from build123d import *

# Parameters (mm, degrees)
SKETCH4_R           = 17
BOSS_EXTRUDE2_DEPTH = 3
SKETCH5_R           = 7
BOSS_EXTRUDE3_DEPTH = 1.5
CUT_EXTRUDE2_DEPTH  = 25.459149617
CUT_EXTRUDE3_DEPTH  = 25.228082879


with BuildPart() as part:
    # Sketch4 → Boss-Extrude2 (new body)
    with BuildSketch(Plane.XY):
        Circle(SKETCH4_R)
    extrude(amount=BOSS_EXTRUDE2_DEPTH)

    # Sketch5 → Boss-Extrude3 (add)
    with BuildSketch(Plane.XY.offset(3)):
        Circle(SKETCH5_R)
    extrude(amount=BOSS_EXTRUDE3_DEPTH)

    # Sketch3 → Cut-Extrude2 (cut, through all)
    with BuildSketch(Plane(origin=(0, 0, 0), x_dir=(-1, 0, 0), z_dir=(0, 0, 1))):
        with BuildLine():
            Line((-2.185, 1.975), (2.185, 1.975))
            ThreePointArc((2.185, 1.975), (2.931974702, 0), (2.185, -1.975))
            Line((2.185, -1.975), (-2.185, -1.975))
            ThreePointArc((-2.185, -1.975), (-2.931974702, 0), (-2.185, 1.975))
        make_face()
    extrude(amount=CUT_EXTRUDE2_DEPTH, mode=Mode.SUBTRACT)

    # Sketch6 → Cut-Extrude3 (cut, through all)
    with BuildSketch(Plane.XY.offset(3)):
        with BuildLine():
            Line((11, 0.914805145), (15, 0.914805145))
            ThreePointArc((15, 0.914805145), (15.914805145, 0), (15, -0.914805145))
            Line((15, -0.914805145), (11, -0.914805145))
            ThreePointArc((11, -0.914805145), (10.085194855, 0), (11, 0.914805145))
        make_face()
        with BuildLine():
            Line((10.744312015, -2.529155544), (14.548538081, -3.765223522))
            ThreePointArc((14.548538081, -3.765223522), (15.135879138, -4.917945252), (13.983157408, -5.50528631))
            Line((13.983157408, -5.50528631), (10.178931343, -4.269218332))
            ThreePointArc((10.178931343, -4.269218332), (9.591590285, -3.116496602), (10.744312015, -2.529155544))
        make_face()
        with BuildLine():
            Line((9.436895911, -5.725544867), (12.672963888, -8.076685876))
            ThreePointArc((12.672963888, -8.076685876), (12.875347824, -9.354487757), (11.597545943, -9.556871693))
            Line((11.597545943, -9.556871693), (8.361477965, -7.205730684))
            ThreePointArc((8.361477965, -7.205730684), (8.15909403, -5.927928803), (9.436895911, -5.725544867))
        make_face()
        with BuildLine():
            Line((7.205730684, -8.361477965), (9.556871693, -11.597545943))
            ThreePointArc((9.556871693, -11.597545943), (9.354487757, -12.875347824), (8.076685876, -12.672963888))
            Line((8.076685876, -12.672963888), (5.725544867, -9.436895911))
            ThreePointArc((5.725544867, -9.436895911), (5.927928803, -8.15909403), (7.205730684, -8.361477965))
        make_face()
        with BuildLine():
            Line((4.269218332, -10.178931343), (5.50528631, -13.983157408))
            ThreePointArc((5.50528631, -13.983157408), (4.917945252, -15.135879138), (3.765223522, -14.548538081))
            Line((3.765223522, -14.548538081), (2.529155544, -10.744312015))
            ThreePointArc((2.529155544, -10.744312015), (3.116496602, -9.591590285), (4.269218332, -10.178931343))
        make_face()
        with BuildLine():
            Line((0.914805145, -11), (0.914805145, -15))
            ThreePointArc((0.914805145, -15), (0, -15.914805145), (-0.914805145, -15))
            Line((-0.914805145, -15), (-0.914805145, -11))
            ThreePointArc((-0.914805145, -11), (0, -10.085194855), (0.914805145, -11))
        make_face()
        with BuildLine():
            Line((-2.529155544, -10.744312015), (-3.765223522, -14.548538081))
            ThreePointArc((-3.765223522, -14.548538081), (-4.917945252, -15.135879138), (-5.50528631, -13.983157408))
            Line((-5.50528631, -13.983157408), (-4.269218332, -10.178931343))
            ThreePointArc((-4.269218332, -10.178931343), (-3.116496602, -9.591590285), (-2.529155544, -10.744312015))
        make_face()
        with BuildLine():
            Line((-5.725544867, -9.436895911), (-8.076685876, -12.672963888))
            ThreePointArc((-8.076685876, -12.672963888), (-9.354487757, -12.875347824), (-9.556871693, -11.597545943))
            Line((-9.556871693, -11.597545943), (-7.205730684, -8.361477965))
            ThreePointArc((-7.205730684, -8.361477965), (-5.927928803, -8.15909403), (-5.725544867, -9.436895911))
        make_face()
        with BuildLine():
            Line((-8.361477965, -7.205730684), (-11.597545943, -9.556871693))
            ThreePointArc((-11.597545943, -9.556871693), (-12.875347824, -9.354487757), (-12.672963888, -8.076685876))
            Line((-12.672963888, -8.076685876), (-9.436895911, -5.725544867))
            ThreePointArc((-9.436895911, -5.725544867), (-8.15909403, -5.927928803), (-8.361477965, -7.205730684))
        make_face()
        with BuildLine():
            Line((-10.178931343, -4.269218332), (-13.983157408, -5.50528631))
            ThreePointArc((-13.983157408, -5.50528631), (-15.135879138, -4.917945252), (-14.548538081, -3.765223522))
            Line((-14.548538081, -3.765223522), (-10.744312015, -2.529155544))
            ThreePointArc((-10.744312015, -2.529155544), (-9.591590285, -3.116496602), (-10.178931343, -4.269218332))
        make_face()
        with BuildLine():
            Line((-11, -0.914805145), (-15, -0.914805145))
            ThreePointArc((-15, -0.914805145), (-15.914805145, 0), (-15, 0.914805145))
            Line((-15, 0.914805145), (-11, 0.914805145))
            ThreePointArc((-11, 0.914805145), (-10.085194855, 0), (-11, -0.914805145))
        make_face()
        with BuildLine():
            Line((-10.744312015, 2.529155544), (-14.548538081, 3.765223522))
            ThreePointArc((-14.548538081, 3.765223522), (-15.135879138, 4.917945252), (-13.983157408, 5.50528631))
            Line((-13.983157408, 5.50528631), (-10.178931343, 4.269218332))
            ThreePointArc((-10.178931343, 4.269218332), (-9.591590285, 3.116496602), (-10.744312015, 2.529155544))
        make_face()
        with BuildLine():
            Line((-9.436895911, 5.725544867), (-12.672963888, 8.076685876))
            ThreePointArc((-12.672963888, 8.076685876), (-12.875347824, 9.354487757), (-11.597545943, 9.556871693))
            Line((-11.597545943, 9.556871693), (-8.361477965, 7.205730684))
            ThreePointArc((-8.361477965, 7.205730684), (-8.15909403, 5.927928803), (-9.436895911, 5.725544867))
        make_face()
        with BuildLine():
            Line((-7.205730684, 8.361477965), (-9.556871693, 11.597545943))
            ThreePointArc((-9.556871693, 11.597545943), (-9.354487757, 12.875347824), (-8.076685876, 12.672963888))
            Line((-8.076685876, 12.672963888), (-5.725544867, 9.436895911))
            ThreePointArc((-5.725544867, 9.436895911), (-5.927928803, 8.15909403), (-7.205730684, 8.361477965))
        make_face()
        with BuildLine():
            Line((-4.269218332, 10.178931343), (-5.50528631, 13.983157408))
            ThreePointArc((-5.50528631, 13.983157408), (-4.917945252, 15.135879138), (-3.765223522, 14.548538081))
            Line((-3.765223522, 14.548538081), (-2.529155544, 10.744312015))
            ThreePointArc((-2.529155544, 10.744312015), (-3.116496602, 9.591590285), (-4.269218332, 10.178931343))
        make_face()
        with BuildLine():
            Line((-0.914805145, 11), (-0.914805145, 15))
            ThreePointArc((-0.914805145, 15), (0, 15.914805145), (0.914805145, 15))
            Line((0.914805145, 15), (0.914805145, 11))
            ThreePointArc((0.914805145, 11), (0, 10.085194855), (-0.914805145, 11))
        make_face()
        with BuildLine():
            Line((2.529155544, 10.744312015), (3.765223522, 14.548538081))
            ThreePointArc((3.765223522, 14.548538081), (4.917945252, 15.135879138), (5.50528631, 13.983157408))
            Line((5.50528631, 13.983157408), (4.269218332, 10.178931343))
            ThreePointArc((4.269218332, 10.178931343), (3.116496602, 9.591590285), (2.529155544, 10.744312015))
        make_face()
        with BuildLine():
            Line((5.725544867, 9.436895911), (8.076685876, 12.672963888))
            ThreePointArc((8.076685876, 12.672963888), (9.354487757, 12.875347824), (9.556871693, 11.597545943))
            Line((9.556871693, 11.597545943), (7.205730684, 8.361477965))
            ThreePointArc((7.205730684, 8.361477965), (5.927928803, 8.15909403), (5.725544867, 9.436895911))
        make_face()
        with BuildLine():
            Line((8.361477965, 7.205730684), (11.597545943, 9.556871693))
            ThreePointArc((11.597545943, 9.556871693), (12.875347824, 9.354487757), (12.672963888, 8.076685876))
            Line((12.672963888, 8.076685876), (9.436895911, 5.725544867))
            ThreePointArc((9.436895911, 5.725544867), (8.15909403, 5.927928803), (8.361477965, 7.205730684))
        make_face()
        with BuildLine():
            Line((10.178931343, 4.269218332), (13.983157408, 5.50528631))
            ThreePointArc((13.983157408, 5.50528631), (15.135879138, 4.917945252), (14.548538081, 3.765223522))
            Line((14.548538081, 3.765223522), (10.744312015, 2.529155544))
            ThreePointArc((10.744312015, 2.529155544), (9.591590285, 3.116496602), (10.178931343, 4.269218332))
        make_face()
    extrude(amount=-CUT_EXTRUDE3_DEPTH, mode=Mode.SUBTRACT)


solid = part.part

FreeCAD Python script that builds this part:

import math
import FreeCAD as App
import Part
import Sketcher
from FreeCAD import Vector
Q = App.Units.Quantity

doc = App.newDocument("Part")
params = doc.addObject("Spreadsheet::Sheet", "Params")
for row, (alias, value) in enumerate([
    ("sketch1_diameter", "34 mm"),
    ("pad1_length", "3 mm"),
    ("sketch2_diameter", "14 mm"),
    ("pad2_length", "1.5 mm"),
    ("sketch3_width", "4.37 mm"),
    ("sketch4_width", "4 mm"),
    ("sketch4_length", "4 mm"),
], start=1):
    params.set(f"A{row}", alias)
    params.set(f"B{row}", "=" + value)
    params.setAlias(f"B{row}", alias)

body = doc.addObject("PartDesign::Body", "Body")

# Sketch on XY plane
sketch1 = body.newObject("Sketcher::SketchObject", "Sketch")
sketch1.AttachmentSupport = (doc.getObject("XY_Plane"), [""])
sketch1.MapMode = "FlatFace"
sketch1.addGeometry(Part.Circle(Vector(0, 0, 0), Vector(0, 0, 1), 17), False)
sketch1.addConstraint(Sketcher.Constraint("Coincident", 0, 3, -1, 1))
sketch1.addConstraint(Sketcher.Constraint("Diameter", 0, Q("34 mm")))
sketch1.setExpression("Constraints[1]", "Params.sketch1_diameter")
pad1 = body.newObject("PartDesign::Pad", "Pad")
pad1.Profile = sketch1
pad1.setExpression("Length", "Params.pad1_length")

# Sketch on XY plane
sketch2 = body.newObject("Sketcher::SketchObject", "Sketch001")
sketch2.AttachmentSupport = (doc.getObject("XY_Plane"), [""])
sketch2.MapMode = "FlatFace"
sketch2.AttachmentOffset = App.Placement(Vector(0, 0, 3), App.Rotation())
sketch2.addGeometry(Part.Circle(Vector(0, 0, 0), Vector(0, 0, 1), 7), False)
sketch2.addConstraint(Sketcher.Constraint("Coincident", 0, 3, -1, 1))
sketch2.addConstraint(Sketcher.Constraint("Diameter", 0, Q("14 mm")))
sketch2.setExpression("Constraints[1]", "Params.sketch2_diameter")
pad2 = body.newObject("PartDesign::Pad", "Pad001")
pad2.Profile = sketch2
pad2.setExpression("Length", "Params.pad2_length")

# Sketch on XY plane
sketch3 = body.newObject("Sketcher::SketchObject", "Sketch002")
sketch3.AttachmentSupport = (doc.getObject("XY_Plane"), [""])
sketch3.MapMode = "FlatFace"
sketch3.addGeometry(Part.LineSegment(Vector(-2.2, -2, 0), Vector(2.2, -2, 0)), False)
sketch3.addGeometry(Part.ArcOfCircle(Part.Circle(Vector(-0.1, 0, 0), Vector(0, 0, 1), 3), math.radians(-41), math.radians(41)), False)
sketch3.addGeometry(Part.LineSegment(Vector(2.2, 2, 0), Vector(-2.2, 2, 0)), False)
sketch3.addGeometry(Part.ArcOfCircle(Part.Circle(Vector(0.1, 0, 0), Vector(0, 0, 1), 3), math.radians(139), math.radians(221)), False)
sketch3.addConstraint(Sketcher.Constraint("Coincident", 0, 2, 1, 1))
sketch3.addConstraint(Sketcher.Constraint("Coincident", 1, 2, 2, 1))
sketch3.addConstraint(Sketcher.Constraint("Coincident", 2, 2, 3, 1))
sketch3.addConstraint(Sketcher.Constraint("Coincident", 3, 2, 0, 1))
sketch3.addConstraint(Sketcher.Constraint("Horizontal", 0))
sketch3.addConstraint(Sketcher.Constraint("Horizontal", 2))
sketch3.addConstraint(Sketcher.Constraint("Equal", 1, 3))
sketch3.addConstraint(Sketcher.Constraint("Symmetric", 1, 3, 3, 3, -1, 1))
sketch3.addConstraint(Sketcher.Constraint("Symmetric", 0, 2, 1, 2, -1))
sketch3.addConstraint(Sketcher.Constraint("DistanceX", 0, 1, 0, 2, Q("4.37 mm")))
sketch3.addConstraint(Sketcher.Constraint("DistanceY", 0, 2, 1, 2, Q("3.95 mm")))
sketch3.addConstraint(Sketcher.Constraint("Radius", 1, Q("2.984436 mm")))
sketch3.setExpression("Constraints[9]", "Params.sketch3_width")
pocket1 = body.newObject("PartDesign::Pocket", "Pocket")
pocket1.Profile = sketch3
pocket1.Type = "ThroughAll"
pocket1.Reversed = True

# Sketch on XY plane
sketch4 = body.newObject("Sketcher::SketchObject", "Sketch003")
sketch4.AttachmentSupport = (doc.getObject("XY_Plane"), [""])
sketch4.MapMode = "FlatFace"
sketch4.AttachmentOffset = App.Placement(Vector(0, 0, 3), App.Rotation())
sketch4.addGeometry(Part.LineSegment(Vector(15, 0.9, 0), Vector(11, 0.9, 0)), False)
sketch4.addGeometry(Part.ArcOfCircle(Part.Circle(Vector(11, 0, 0), Vector(0, 0, 1), 0.9), math.radians(90), math.radians(270)), False)
sketch4.addGeometry(Part.LineSegment(Vector(11, -0.9, 0), Vector(15, -0.9, 0)), False)
sketch4.addGeometry(Part.ArcOfCircle(Part.Circle(Vector(15, 0, 0), Vector(0, 0, 1), 0.9), math.radians(-90), math.radians(90)), False)
sketch4.addGeometry(Part.LineSegment(Vector(14.5, -3.8, 0), Vector(10.7, -2.5, 0)), False)
sketch4.addGeometry(Part.ArcOfCircle(Part.Circle(Vector(10.5, -3.4, 0), Vector(0, 0, 1), 0.9), math.radians(72), math.radians(252)), False)
sketch4.addGeometry(Part.LineSegment(Vector(10.2, -4.3, 0), Vector(14, -5.5, 0)), False)
sketch4.addGeometry(Part.ArcOfCircle(Part.Circle(Vector(14.3, -4.6, 0), Vector(0, 0, 1), 0.9), math.radians(-108), math.radians(72)), False)
sketch4.addGeometry(Part.LineSegment(Vector(12.7, -8.1, 0), Vector(9.4, -5.7, 0)), False)
sketch4.addGeometry(Part.ArcOfCircle(Part.Circle(Vector(8.9, -6.5, 0), Vector(0, 0, 1), 0.9), math.radians(54), math.radians(234)), False)
sketch4.addGeometry(Part.LineSegment(Vector(8.4, -7.2, 0), Vector(11.6, -9.6, 0)), False)
sketch4.addGeometry(Part.ArcOfCircle(Part.Circle(Vector(12.1, -8.8, 0), Vector(0, 0, 1), 0.9), math.radians(-126), math.radians(54)), False)
sketch4.addGeometry(Part.LineSegment(Vector(9.6, -11.6, 0), Vector(7.2, -8.4, 0)), False)
sketch4.addGeometry(Part.ArcOfCircle(Part.Circle(Vector(6.5, -8.9, 0), Vector(0, 0, 1), 0.9), math.radians(36), math.radians(216)), False)
sketch4.addGeometry(Part.LineSegment(Vector(5.7, -9.4, 0), Vector(8.1, -12.7, 0)), False)
sketch4.addGeometry(Part.ArcOfCircle(Part.Circle(Vector(8.8, -12.1, 0), Vector(0, 0, 1), 0.9), math.radians(-144), math.radians(36)), False)
sketch4.addGeometry(Part.LineSegment(Vector(5.5, -14, 0), Vector(4.3, -10.2, 0)), False)
sketch4.addGeometry(Part.ArcOfCircle(Part.Circle(Vector(3.4, -10.5, 0), Vector(0, 0, 1), 0.9), math.radians(18), math.radians(198)), False)
sketch4.addGeometry(Part.LineSegment(Vector(2.5, -10.7, 0), Vector(3.8, -14.5, 0)), False)
sketch4.addGeometry(Part.ArcOfCircle(Part.Circle(Vector(4.6, -14.3, 0), Vector(0, 0, 1), 0.9), math.radians(-162), math.radians(18)), False)
sketch4.addGeometry(Part.LineSegment(Vector(0.9, -15, 0), Vector(0.9, -11, 0)), False)
sketch4.addGeometry(Part.ArcOfCircle(Part.Circle(Vector(0, -11, 0), Vector(0, 0, 1), 0.9), math.radians(0), math.radians(180)), False)
sketch4.addGeometry(Part.LineSegment(Vector(-0.9, -11, 0), Vector(-0.9, -15, 0)), False)
sketch4.addGeometry(Part.ArcOfCircle(Part.Circle(Vector(0, -15, 0), Vector(0, 0, 1), 0.9), math.radians(180), math.radians(360)), False)
sketch4.addGeometry(Part.LineSegment(Vector(-3.8, -14.5, 0), Vector(-2.5, -10.7, 0)), False)
sketch4.addGeometry(Part.ArcOfCircle(Part.Circle(Vector(-3.4, -10.5, 0), Vector(0, 0, 1), 0.9), math.radians(-18), math.radians(162)), False)
sketch4.addGeometry(Part.LineSegment(Vector(-4.3, -10.2, 0), Vector(-5.5, -14, 0)), False)
sketch4.addGeometry(Part.ArcOfCircle(Part.Circle(Vector(-4.6, -14.3, 0), Vector(0, 0, 1), 0.9), math.radians(162), math.radians(342)), False)
sketch4.addGeometry(Part.LineSegment(Vector(-8.1, -12.7, 0), Vector(-5.7, -9.4, 0)), False)
sketch4.addGeometry(Part.ArcOfCircle(Part.Circle(Vector(-6.5, -8.9, 0), Vector(0, 0, 1), 0.9), math.radians(-36), math.radians(144)), False)
sketch4.addGeometry(Part.LineSegment(Vector(-7.2, -8.4, 0), Vector(-9.6, -11.6, 0)), False)
sketch4.addGeometry(Part.ArcOfCircle(Part.Circle(Vector(-8.8, -12.1, 0), Vector(0, 0, 1), 0.9), math.radians(144), math.radians(324)), False)
sketch4.addGeometry(Part.LineSegment(Vector(-11.6, -9.6, 0), Vector(-8.4, -7.2, 0)), False)
sketch4.addGeometry(Part.ArcOfCircle(Part.Circle(Vector(-8.9, -6.5, 0), Vector(0, 0, 1), 0.9), math.radians(-54), math.radians(126)), False)
sketch4.addGeometry(Part.LineSegment(Vector(-9.4, -5.7, 0), Vector(-12.7, -8.1, 0)), False)
sketch4.addGeometry(Part.ArcOfCircle(Part.Circle(Vector(-12.1, -8.8, 0), Vector(0, 0, 1), 0.9), math.radians(126), math.radians(306)), False)
sketch4.addGeometry(Part.LineSegment(Vector(-14, -5.5, 0), Vector(-10.2, -4.3, 0)), False)
sketch4.addGeometry(Part.ArcOfCircle(Part.Circle(Vector(-10.5, -3.4, 0), Vector(0, 0, 1), 0.9), math.radians(-72), math.radians(108)), False)
sketch4.addGeometry(Part.LineSegment(Vector(-10.7, -2.5, 0), Vector(-14.5, -3.8, 0)), False)
sketch4.addGeometry(Part.ArcOfCircle(Part.Circle(Vector(-14.3, -4.6, 0), Vector(0, 0, 1), 0.9), math.radians(108), math.radians(288)), False)
sketch4.addGeometry(Part.LineSegment(Vector(-15, -0.9, 0), Vector(-11, -0.9, 0)), False)
sketch4.addGeometry(Part.ArcOfCircle(Part.Circle(Vector(-11, 0, 0), Vector(0, 0, 1), 0.9), math.radians(-90), math.radians(90)), False)
sketch4.addGeometry(Part.LineSegment(Vector(-11, 0.9, 0), Vector(-15, 0.9, 0)), False)
sketch4.addGeometry(Part.ArcOfCircle(Part.Circle(Vector(-15, 0, 0), Vector(0, 0, 1), 0.9), math.radians(90), math.radians(270)), False)
sketch4.addGeometry(Part.LineSegment(Vector(-14.5, 3.8, 0), Vector(-10.7, 2.5, 0)), False)
sketch4.addGeometry(Part.ArcOfCircle(Part.Circle(Vector(-10.5, 3.4, 0), Vector(0, 0, 1), 0.9), math.radians(-108), math.radians(72)), False)
sketch4.addGeometry(Part.LineSegment(Vector(-10.2, 4.3, 0), Vector(-14, 5.5, 0)), False)
sketch4.addGeometry(Part.ArcOfCircle(Part.Circle(Vector(-14.3, 4.6, 0), Vector(0, 0, 1), 0.9), math.radians(72), math.radians(252)), False)
sketch4.addGeometry(Part.LineSegment(Vector(-12.7, 8.1, 0), Vector(-9.4, 5.7, 0)), False)
sketch4.addGeometry(Part.ArcOfCircle(Part.Circle(Vector(-8.9, 6.5, 0), Vector(0, 0, 1), 0.9), math.radians(-126), math.radians(54)), False)
sketch4.addGeometry(Part.LineSegment(Vector(-8.4, 7.2, 0), Vector(-11.6, 9.6, 0)), False)
sketch4.addGeometry(Part.ArcOfCircle(Part.Circle(Vector(-12.1, 8.8, 0), Vector(0, 0, 1), 0.9), math.radians(54), math.radians(234)), False)
sketch4.addGeometry(Part.LineSegment(Vector(-9.6, 11.6, 0), Vector(-7.2, 8.4, 0)), False)
sketch4.addGeometry(Part.ArcOfCircle(Part.Circle(Vector(-6.5, 8.9, 0), Vector(0, 0, 1), 0.9), math.radians(-144), math.radians(36)), False)
sketch4.addGeometry(Part.LineSegment(Vector(-5.7, 9.4, 0), Vector(-8.1, 12.7, 0)), False)
sketch4.addGeometry(Part.ArcOfCircle(Part.Circle(Vector(-8.8, 12.1, 0), Vector(0, 0, 1), 0.9), math.radians(36), math.radians(216)), False)
sketch4.addGeometry(Part.LineSegment(Vector(-5.5, 14, 0), Vector(-4.3, 10.2, 0)), False)
sketch4.addGeometry(Part.ArcOfCircle(Part.Circle(Vector(-3.4, 10.5, 0), Vector(0, 0, 1), 0.9), math.radians(-162), math.radians(18)), False)
sketch4.addGeometry(Part.LineSegment(Vector(-2.5, 10.7, 0), Vector(-3.8, 14.5, 0)), False)
sketch4.addGeometry(Part.ArcOfCircle(Part.Circle(Vector(-4.6, 14.3, 0), Vector(0, 0, 1), 0.9), math.radians(18), math.radians(198)), False)
sketch4.addGeometry(Part.LineSegment(Vector(-0.9, 15, 0), Vector(-0.9, 11, 0)), False)
sketch4.addGeometry(Part.ArcOfCircle(Part.Circle(Vector(0, 11, 0), Vector(0, 0, 1), 0.9), math.radians(180), math.radians(360)), False)
sketch4.addGeometry(Part.LineSegment(Vector(0.9, 11, 0), Vector(0.9, 15, 0)), False)
sketch4.addGeometry(Part.ArcOfCircle(Part.Circle(Vector(0, 15, 0), Vector(0, 0, 1), 0.9), math.radians(0), math.radians(180)), False)
sketch4.addGeometry(Part.LineSegment(Vector(3.8, 14.5, 0), Vector(2.5, 10.7, 0)), False)
sketch4.addGeometry(Part.ArcOfCircle(Part.Circle(Vector(3.4, 10.5, 0), Vector(0, 0, 1), 0.9), math.radians(162), math.radians(342)), False)
sketch4.addGeometry(Part.LineSegment(Vector(4.3, 10.2, 0), Vector(5.5, 14, 0)), False)
sketch4.addGeometry(Part.ArcOfCircle(Part.Circle(Vector(4.6, 14.3, 0), Vector(0, 0, 1), 0.9), math.radians(-18), math.radians(162)), False)
sketch4.addGeometry(Part.LineSegment(Vector(8.1, 12.7, 0), Vector(5.7, 9.4, 0)), False)
sketch4.addGeometry(Part.ArcOfCircle(Part.Circle(Vector(6.5, 8.9, 0), Vector(0, 0, 1), 0.9), math.radians(144), math.radians(324)), False)
sketch4.addGeometry(Part.LineSegment(Vector(7.2, 8.4, 0), Vector(9.6, 11.6, 0)), False)
sketch4.addGeometry(Part.ArcOfCircle(Part.Circle(Vector(8.8, 12.1, 0), Vector(0, 0, 1), 0.9), math.radians(-36), math.radians(144)), False)
sketch4.addGeometry(Part.LineSegment(Vector(11.6, 9.6, 0), Vector(8.4, 7.2, 0)), False)
sketch4.addGeometry(Part.ArcOfCircle(Part.Circle(Vector(8.9, 6.5, 0), Vector(0, 0, 1), 0.9), math.radians(126), math.radians(306)), False)
sketch4.addGeometry(Part.LineSegment(Vector(9.4, 5.7, 0), Vector(12.7, 8.1, 0)), False)
sketch4.addGeometry(Part.ArcOfCircle(Part.Circle(Vector(12.1, 8.8, 0), Vector(0, 0, 1), 0.9), math.radians(-54), math.radians(126)), False)
sketch4.addGeometry(Part.LineSegment(Vector(14, 5.5, 0), Vector(10.2, 4.3, 0)), False)
sketch4.addGeometry(Part.ArcOfCircle(Part.Circle(Vector(10.5, 3.4, 0), Vector(0, 0, 1), 0.9), math.radians(108), math.radians(288)), False)
sketch4.addGeometry(Part.LineSegment(Vector(10.7, 2.5, 0), Vector(14.5, 3.8, 0)), False)
sketch4.addGeometry(Part.ArcOfCircle(Part.Circle(Vector(14.3, 4.6, 0), Vector(0, 0, 1), 0.9), math.radians(-72), math.radians(108)), False)
sketch4.addConstraint(Sketcher.Constraint("Tangent", 0, 2, 1, 1))
sketch4.addConstraint(Sketcher.Constraint("Tangent", 1, 2, 2, 1))
sketch4.addConstraint(Sketcher.Constraint("Tangent", 2, 2, 3, 1))
sketch4.addConstraint(Sketcher.Constraint("Tangent", 3, 2, 0, 1))
sketch4.addConstraint(Sketcher.Constraint("Tangent", 4, 2, 5, 1))
sketch4.addConstraint(Sketcher.Constraint("Tangent", 5, 2, 6, 1))
sketch4.addConstraint(Sketcher.Constraint("Tangent", 6, 2, 7, 1))
sketch4.addConstraint(Sketcher.Constraint("Tangent", 7, 2, 4, 1))
sketch4.addConstraint(Sketcher.Constraint("Tangent", 8, 2, 9, 1))
sketch4.addConstraint(Sketcher.Constraint("Tangent", 9, 2, 10, 1))
sketch4.addConstraint(Sketcher.Constraint("Tangent", 10, 2, 11, 1))
sketch4.addConstraint(Sketcher.Constraint("Tangent", 11, 2, 8, 1))
sketch4.addConstraint(Sketcher.Constraint("Tangent", 12, 2, 13, 1))
sketch4.addConstraint(Sketcher.Constraint("Tangent", 13, 2, 14, 1))
sketch4.addConstraint(Sketcher.Constraint("Tangent", 14, 2, 15, 1))
sketch4.addConstraint(Sketcher.Constraint("Tangent", 15, 2, 12, 1))
sketch4.addConstraint(Sketcher.Constraint("Tangent", 16, 2, 17, 1))
sketch4.addConstraint(Sketcher.Constraint("Tangent", 17, 2, 18, 1))
sketch4.addConstraint(Sketcher.Constraint("Tangent", 18, 2, 19, 1))
sketch4.addConstraint(Sketcher.Constraint("Tangent", 19, 2, 16, 1))
sketch4.addConstraint(Sketcher.Constraint("Tangent", 20, 2, 21, 1))
sketch4.addConstraint(Sketcher.Constraint("Tangent", 21, 2, 22, 1))
sketch4.addConstraint(Sketcher.Constraint("Tangent", 22, 2, 23, 1))
sketch4.addConstraint(Sketcher.Constraint("Tangent", 23, 2, 20, 1))
sketch4.addConstraint(Sketcher.Constraint("Tangent", 24, 2, 25, 1))
sketch4.addConstraint(Sketcher.Constraint("Tangent", 25, 2, 26, 1))
sketch4.addConstraint(Sketcher.Constraint("Tangent", 26, 2, 27, 1))
sketch4.addConstraint(Sketcher.Constraint("Tangent", 27, 2, 24, 1))
sketch4.addConstraint(Sketcher.Constraint("Tangent", 28, 2, 29, 1))
sketch4.addConstraint(Sketcher.Constraint("Tangent", 29, 2, 30, 1))
sketch4.addConstraint(Sketcher.Constraint("Tangent", 30, 2, 31, 1))
sketch4.addConstraint(Sketcher.Constraint("Tangent", 31, 2, 28, 1))
sketch4.addConstraint(Sketcher.Constraint("Tangent", 32, 2, 33, 1))
sketch4.addConstraint(Sketcher.Constraint("Tangent", 33, 2, 34, 1))
sketch4.addConstraint(Sketcher.Constraint("Tangent", 34, 2, 35, 1))
sketch4.addConstraint(Sketcher.Constraint("Tangent", 35, 2, 32, 1))
sketch4.addConstraint(Sketcher.Constraint("Tangent", 36, 2, 37, 1))
sketch4.addConstraint(Sketcher.Constraint("Tangent", 37, 2, 38, 1))
sketch4.addConstraint(Sketcher.Constraint("Tangent", 38, 2, 39, 1))
sketch4.addConstraint(Sketcher.Constraint("Tangent", 39, 2, 36, 1))
sketch4.addConstraint(Sketcher.Constraint("Tangent", 40, 2, 41, 1))
sketch4.addConstraint(Sketcher.Constraint("Tangent", 41, 2, 42, 1))
sketch4.addConstraint(Sketcher.Constraint("Tangent", 42, 2, 43, 1))
sketch4.addConstraint(Sketcher.Constraint("Tangent", 43, 2, 40, 1))
sketch4.addConstraint(Sketcher.Constraint("Tangent", 44, 2, 45, 1))
sketch4.addConstraint(Sketcher.Constraint("Tangent", 45, 2, 46, 1))
sketch4.addConstraint(Sketcher.Constraint("Tangent", 46, 2, 47, 1))
sketch4.addConstraint(Sketcher.Constraint("Tangent", 47, 2, 44, 1))
sketch4.addConstraint(Sketcher.Constraint("Tangent", 48, 2, 49, 1))
sketch4.addConstraint(Sketcher.Constraint("Tangent", 49, 2, 50, 1))
sketch4.addConstraint(Sketcher.Constraint("Tangent", 50, 2, 51, 1))
sketch4.addConstraint(Sketcher.Constraint("Tangent", 51, 2, 48, 1))
sketch4.addConstraint(Sketcher.Constraint("Tangent", 52, 2, 53, 1))
sketch4.addConstraint(Sketcher.Constraint("Tangent", 53, 2, 54, 1))
sketch4.addConstraint(Sketcher.Constraint("Tangent", 54, 2, 55, 1))
sketch4.addConstraint(Sketcher.Constraint("Tangent", 55, 2, 52, 1))
sketch4.addConstraint(Sketcher.Constraint("Tangent", 56, 2, 57, 1))
sketch4.addConstraint(Sketcher.Constraint("Tangent", 57, 2, 58, 1))
sketch4.addConstraint(Sketcher.Constraint("Tangent", 58, 2, 59, 1))
sketch4.addConstraint(Sketcher.Constraint("Tangent", 59, 2, 56, 1))
sketch4.addConstraint(Sketcher.Constraint("Tangent", 60, 2, 61, 1))
sketch4.addConstraint(Sketcher.Constraint("Tangent", 61, 2, 62, 1))
sketch4.addConstraint(Sketcher.Constraint("Tangent", 62, 2, 63, 1))
sketch4.addConstraint(Sketcher.Constraint("Tangent", 63, 2, 60, 1))
sketch4.addConstraint(Sketcher.Constraint("Tangent", 64, 2, 65, 1))
sketch4.addConstraint(Sketcher.Constraint("Tangent", 65, 2, 66, 1))
sketch4.addConstraint(Sketcher.Constraint("Tangent", 66, 2, 67, 1))
sketch4.addConstraint(Sketcher.Constraint("Tangent", 67, 2, 64, 1))
sketch4.addConstraint(Sketcher.Constraint("Tangent", 68, 2, 69, 1))
sketch4.addConstraint(Sketcher.Constraint("Tangent", 69, 2, 70, 1))
sketch4.addConstraint(Sketcher.Constraint("Tangent", 70, 2, 71, 1))
sketch4.addConstraint(Sketcher.Constraint("Tangent", 71, 2, 68, 1))
sketch4.addConstraint(Sketcher.Constraint("Tangent", 72, 2, 73, 1))
sketch4.addConstraint(Sketcher.Constraint("Tangent", 73, 2, 74, 1))
sketch4.addConstraint(Sketcher.Constraint("Tangent", 74, 2, 75, 1))
sketch4.addConstraint(Sketcher.Constraint("Tangent", 75, 2, 72, 1))
sketch4.addConstraint(Sketcher.Constraint("Tangent", 76, 2, 77, 1))
sketch4.addConstraint(Sketcher.Constraint("Tangent", 77, 2, 78, 1))
sketch4.addConstraint(Sketcher.Constraint("Tangent", 78, 2, 79, 1))
sketch4.addConstraint(Sketcher.Constraint("Tangent", 79, 2, 76, 1))
sketch4.addConstraint(Sketcher.Constraint("Horizontal", 0))
sketch4.addConstraint(Sketcher.Constraint("Horizontal", 2))
sketch4.addConstraint(Sketcher.Constraint("Vertical", 20))
sketch4.addConstraint(Sketcher.Constraint("Vertical", 22))
sketch4.addConstraint(Sketcher.Constraint("Horizontal", 40))
sketch4.addConstraint(Sketcher.Constraint("Horizontal", 42))
sketch4.addConstraint(Sketcher.Constraint("Vertical", 60))
sketch4.addConstraint(Sketcher.Constraint("Vertical", 62))
sketch4.addConstraint(Sketcher.Constraint("Equal", 3, 5))
sketch4.addConstraint(Sketcher.Constraint("Equal", 5, 7))
sketch4.addConstraint(Sketcher.Constraint("Equal", 7, 9))
sketch4.addConstraint(Sketcher.Constraint("Equal", 9, 11))
sketch4.addConstraint(Sketcher.Constraint("Equal", 11, 13))
sketch4.addConstraint(Sketcher.Constraint("Equal", 13, 15))
sketch4.addConstraint(Sketcher.Constraint("Equal", 15, 17))
sketch4.addConstraint(Sketcher.Constraint("Equal", 17, 19))
sketch4.addConstraint(Sketcher.Constraint("Equal", 19, 21))
sketch4.addConstraint(Sketcher.Constraint("Equal", 23, 25))
sketch4.addConstraint(Sketcher.Constraint("Equal", 25, 27))
sketch4.addConstraint(Sketcher.Constraint("Equal", 27, 29))
sketch4.addConstraint(Sketcher.Constraint("Equal", 29, 31))
sketch4.addConstraint(Sketcher.Constraint("Equal", 31, 33))
sketch4.addConstraint(Sketcher.Constraint("Equal", 33, 35))
sketch4.addConstraint(Sketcher.Constraint("Equal", 35, 37))
sketch4.addConstraint(Sketcher.Constraint("Equal", 37, 39))
sketch4.addConstraint(Sketcher.Constraint("Equal", 39, 41))
sketch4.addConstraint(Sketcher.Constraint("Equal", 43, 45))
sketch4.addConstraint(Sketcher.Constraint("Equal", 45, 47))
sketch4.addConstraint(Sketcher.Constraint("Equal", 47, 49))
sketch4.addConstraint(Sketcher.Constraint("Equal", 49, 51))
sketch4.addConstraint(Sketcher.Constraint("Equal", 51, 53))
sketch4.addConstraint(Sketcher.Constraint("Equal", 53, 55))
sketch4.addConstraint(Sketcher.Constraint("Equal", 55, 57))
sketch4.addConstraint(Sketcher.Constraint("Equal", 57, 59))
sketch4.addConstraint(Sketcher.Constraint("Equal", 59, 61))
sketch4.addConstraint(Sketcher.Constraint("Equal", 63, 65))
sketch4.addConstraint(Sketcher.Constraint("Equal", 65, 67))
sketch4.addConstraint(Sketcher.Constraint("Equal", 67, 69))
sketch4.addConstraint(Sketcher.Constraint("Equal", 69, 71))
sketch4.addConstraint(Sketcher.Constraint("Equal", 71, 73))
sketch4.addConstraint(Sketcher.Constraint("Equal", 73, 75))
sketch4.addConstraint(Sketcher.Constraint("Equal", 75, 77))
sketch4.addConstraint(Sketcher.Constraint("Equal", 77, 79))
sketch4.addConstraint(Sketcher.Constraint("Symmetric", 1, 3, 41, 3, -1, 1))
sketch4.addConstraint(Sketcher.Constraint("Symmetric", 5, 3, 45, 3, -1, 1))
sketch4.addConstraint(Sketcher.Constraint("Symmetric", 7, 3, 47, 3, -1, 1))
sketch4.addConstraint(Sketcher.Constraint("Symmetric", 9, 3, 49, 3, -1, 1))
sketch4.addConstraint(Sketcher.Constraint("Symmetric", 11, 3, 51, 3, -1, 1))
sketch4.addConstraint(Sketcher.Constraint("Symmetric", 13, 3, 53, 3, -1, 1))
sketch4.addConstraint(Sketcher.Constraint("Symmetric", 15, 3, 55, 3, -1, 1))
sketch4.addConstraint(Sketcher.Constraint("Symmetric", 17, 3, 57, 3, -1, 1))
sketch4.addConstraint(Sketcher.Constraint("Symmetric", 19, 3, 59, 3, -1, 1))
sketch4.addConstraint(Sketcher.Constraint("Symmetric", 21, 3, 61, 3, -1, 1))
sketch4.addConstraint(Sketcher.Constraint("Symmetric", 25, 3, 65, 3, -1, 1))
sketch4.addConstraint(Sketcher.Constraint("Symmetric", 27, 3, 67, 3, -1, 1))
sketch4.addConstraint(Sketcher.Constraint("Symmetric", 29, 3, 69, 3, -1, 1))
sketch4.addConstraint(Sketcher.Constraint("Symmetric", 31, 3, 71, 3, -1, 1))
sketch4.addConstraint(Sketcher.Constraint("Symmetric", 33, 3, 73, 3, -1, 1))
sketch4.addConstraint(Sketcher.Constraint("Symmetric", 35, 3, 75, 3, -1, 1))
sketch4.addConstraint(Sketcher.Constraint("Symmetric", 37, 3, 77, 3, -1, 1))
sketch4.addConstraint(Sketcher.Constraint("Symmetric", 39, 3, 79, 3, -1, 1))
sketch4.addConstraint(Sketcher.Constraint("Symmetric", 17, 3, 25, 3, -2))
sketch4.addConstraint(Sketcher.Constraint("Symmetric", 19, 3, 27, 3, -2))
sketch4.addConstraint(Sketcher.Constraint("Symmetric", 13, 3, 29, 3, -2))
sketch4.addConstraint(Sketcher.Constraint("Symmetric", 15, 3, 31, 3, -2))
sketch4.addConstraint(Sketcher.Constraint("Symmetric", 9, 3, 33, 3, -2))
sketch4.addConstraint(Sketcher.Constraint("Symmetric", 11, 3, 35, 3, -2))
sketch4.addConstraint(Sketcher.Constraint("Symmetric", 5, 3, 37, 3, -2))
sketch4.addConstraint(Sketcher.Constraint("Symmetric", 7, 3, 39, 3, -2))
sketch4.addConstraint(Sketcher.Constraint("Symmetric", 3, 3, 43, 3, -2))
sketch4.addConstraint(Sketcher.Constraint("Symmetric", 23, 3, 63, 3, -1))
sketch4.addConstraint(Sketcher.Constraint("Perpendicular", 6, 24))
sketch4.addConstraint(Sketcher.Constraint("Perpendicular", 10, 28))
sketch4.addConstraint(Sketcher.Constraint("Equal", 42, 20))
sketch4.addConstraint(Sketcher.Constraint("Equal", 6, 8))
sketch4.addConstraint(Sketcher.Constraint("Equal", 10, 12))
sketch4.addConstraint(Sketcher.Constraint("Equal", 14, 16))
sketch4.addConstraint(Sketcher.Constraint("DistanceX", 0, 2, 0, 1, Q("4 mm")))
sketch4.addConstraint(Sketcher.Constraint("Angle", 4, Q("162 deg")))
sketch4.addConstraint(Sketcher.Constraint("Angle", 8, Q("144 deg")))
sketch4.addConstraint(Sketcher.Constraint("Distance", 4, Q("4 mm")))
sketch4.addConstraint(Sketcher.Constraint("DistanceX", -1, 1, 1, 3, Q("11 mm")))
sketch4.addConstraint(Sketcher.Constraint("DistanceY", 21, 3, -1, 1, Q("11 mm")))
sketch4.addConstraint(Sketcher.Constraint("Radius", 1, Q("0.914805 mm")))
sketch4.addConstraint(Sketcher.Constraint("DistanceX", -1, 1, 5, 3, Q("10.461622 mm")))
sketch4.addConstraint(Sketcher.Constraint("DistanceY", 11, 3, -1, 1, Q("8.816779 mm")))
sketch4.addConstraint(Sketcher.Constraint("DistanceX", -1, 1, 15, 3, Q("8.816779 mm")))
sketch4.addConstraint(Sketcher.Constraint("DistanceY", 17, 3, -1, 1, Q("10.461622 mm")))
sketch4.addConstraint(Sketcher.Constraint("DistanceY", 5, 2, -1, 1, Q("4.269218 mm")))
sketch4.addConstraint(Sketcher.Constraint("DistanceX", -1, 1, 16, 2, Q("4.269218 mm")))
sketch4.addConstraint(Sketcher.Constraint("DistanceX", -1, 1, 9, 3, Q("8.899187 mm")))
sketch4.addConstraint(Sketcher.Constraint("DistanceY", 13, 3, -1, 1, Q("8.899187 mm")))
sketch4.setExpression("Constraints[157]", "Params.sketch4_width")
sketch4.setExpression("Constraints[160]", "Params.sketch4_length")
pocket2 = body.newObject("PartDesign::Pocket", "Pocket001")
pocket2.Profile = sketch4
pocket2.Type = "ThroughAll"

doc.recompute()
